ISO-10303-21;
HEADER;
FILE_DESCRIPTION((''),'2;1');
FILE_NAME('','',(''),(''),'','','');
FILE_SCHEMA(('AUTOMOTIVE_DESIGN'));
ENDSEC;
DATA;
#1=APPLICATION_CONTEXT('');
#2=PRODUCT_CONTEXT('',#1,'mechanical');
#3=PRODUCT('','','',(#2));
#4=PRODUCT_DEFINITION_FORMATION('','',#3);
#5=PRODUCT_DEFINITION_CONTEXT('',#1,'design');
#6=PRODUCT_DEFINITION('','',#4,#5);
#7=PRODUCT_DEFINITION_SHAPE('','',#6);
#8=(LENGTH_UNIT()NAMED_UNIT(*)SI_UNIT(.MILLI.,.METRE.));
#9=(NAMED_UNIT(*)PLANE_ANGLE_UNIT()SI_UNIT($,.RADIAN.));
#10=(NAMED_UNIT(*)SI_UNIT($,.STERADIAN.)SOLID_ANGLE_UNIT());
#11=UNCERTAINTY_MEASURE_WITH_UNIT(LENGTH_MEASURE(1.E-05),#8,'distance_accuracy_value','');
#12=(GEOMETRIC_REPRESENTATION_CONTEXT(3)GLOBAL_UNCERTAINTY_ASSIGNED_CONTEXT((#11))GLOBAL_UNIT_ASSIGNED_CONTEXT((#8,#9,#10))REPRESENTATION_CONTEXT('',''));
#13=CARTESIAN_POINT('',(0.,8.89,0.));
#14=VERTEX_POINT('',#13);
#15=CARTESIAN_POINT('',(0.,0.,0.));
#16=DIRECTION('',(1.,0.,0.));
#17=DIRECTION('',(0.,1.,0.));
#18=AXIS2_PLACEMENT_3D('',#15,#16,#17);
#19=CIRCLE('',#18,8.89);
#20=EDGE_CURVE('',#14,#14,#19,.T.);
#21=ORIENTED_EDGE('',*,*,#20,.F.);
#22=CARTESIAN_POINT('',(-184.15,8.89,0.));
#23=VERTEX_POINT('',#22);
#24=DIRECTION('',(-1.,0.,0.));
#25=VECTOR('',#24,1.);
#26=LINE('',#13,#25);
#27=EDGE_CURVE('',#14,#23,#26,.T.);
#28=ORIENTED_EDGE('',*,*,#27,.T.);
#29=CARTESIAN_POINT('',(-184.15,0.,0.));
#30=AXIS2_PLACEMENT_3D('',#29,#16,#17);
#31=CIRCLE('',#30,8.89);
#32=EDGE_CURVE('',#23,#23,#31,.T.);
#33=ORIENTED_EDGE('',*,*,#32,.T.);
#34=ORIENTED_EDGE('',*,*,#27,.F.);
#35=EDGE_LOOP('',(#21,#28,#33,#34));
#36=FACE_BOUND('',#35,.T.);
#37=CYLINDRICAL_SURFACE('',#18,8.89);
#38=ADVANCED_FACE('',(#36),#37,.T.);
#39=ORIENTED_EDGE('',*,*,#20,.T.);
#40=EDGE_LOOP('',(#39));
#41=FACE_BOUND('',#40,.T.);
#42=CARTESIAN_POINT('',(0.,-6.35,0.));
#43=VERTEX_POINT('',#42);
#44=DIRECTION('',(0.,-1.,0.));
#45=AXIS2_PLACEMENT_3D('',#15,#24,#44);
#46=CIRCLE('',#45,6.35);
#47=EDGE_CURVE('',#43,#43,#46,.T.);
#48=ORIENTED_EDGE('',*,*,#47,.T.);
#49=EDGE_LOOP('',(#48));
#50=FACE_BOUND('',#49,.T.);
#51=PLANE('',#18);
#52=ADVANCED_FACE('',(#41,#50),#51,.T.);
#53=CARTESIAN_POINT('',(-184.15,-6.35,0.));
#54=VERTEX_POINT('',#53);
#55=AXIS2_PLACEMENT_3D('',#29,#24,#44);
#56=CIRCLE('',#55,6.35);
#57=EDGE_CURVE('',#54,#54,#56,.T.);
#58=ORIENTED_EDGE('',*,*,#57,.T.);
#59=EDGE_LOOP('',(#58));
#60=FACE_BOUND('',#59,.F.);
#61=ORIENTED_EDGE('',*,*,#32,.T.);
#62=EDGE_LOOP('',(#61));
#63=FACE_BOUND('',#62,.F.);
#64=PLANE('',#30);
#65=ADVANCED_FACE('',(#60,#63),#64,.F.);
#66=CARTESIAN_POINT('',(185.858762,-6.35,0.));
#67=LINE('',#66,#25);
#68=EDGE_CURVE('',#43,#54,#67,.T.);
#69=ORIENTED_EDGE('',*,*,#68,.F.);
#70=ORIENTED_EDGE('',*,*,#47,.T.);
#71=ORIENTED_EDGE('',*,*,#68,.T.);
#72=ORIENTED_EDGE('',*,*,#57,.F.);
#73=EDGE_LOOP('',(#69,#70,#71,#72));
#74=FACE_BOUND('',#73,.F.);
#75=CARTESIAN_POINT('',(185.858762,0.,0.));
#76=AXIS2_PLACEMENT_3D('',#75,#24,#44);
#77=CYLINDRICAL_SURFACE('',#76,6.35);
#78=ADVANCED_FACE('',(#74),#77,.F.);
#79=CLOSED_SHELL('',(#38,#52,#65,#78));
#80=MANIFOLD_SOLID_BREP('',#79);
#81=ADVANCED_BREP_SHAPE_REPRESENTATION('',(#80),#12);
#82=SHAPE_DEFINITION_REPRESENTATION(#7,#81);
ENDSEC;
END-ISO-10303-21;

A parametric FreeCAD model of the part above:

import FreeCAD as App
import Part
import Sketcher

V = App.Vector
Q = App.Units.Quantity

doc = App.newDocument("Part")
body = doc.addObject("PartDesign::Body", "Body")

# Sketch on YZ plane
sketch1 = body.newObject("Sketcher::SketchObject", "Sketch")
sketch1.AttachmentSupport = (doc.getObject("YZ_Plane"), [""])
sketch1.MapMode = "FlatFace"
sketch1.addGeometry(Part.Circle(V(0, 0, 0), V(0, 0, 1), 9), False)
sketch1.addConstraint(Sketcher.Constraint("Coincident", 0, 3, -1, 1))
sketch1.addConstraint(Sketcher.Constraint("Diameter", 0, Q("0.7 in")))
pad1 = body.newObject("PartDesign::Pad", "Pad")
pad1.Profile = sketch1
pad1.Length = Q("7.25 in")
pad1.Reversed = True

# Sketch on YZ plane
sketch2 = body.newObject("Sketcher::SketchObject", "Sketch001")
sketch2.AttachmentSupport = (doc.getObject("YZ_Plane"), [""])
sketch2.MapMode = "FlatFace"
sketch2.addGeometry(Part.Circle(V(0, 0, 0), V(0, 0, 1), 6), False)
sketch2.addConstraint(Sketcher.Constraint("Coincident", 0, 3, -1, 1))
sketch2.addConstraint(Sketcher.Constraint("Diameter", 0, Q("0.5 in")))
doc.recompute()
hole = body.newObject("PartDesign::Hole", "Hole")
hole.Profile = sketch2
hole.ThreadType = "None"
hole.Diameter = Q("0.5 in")
hole.DepthType = "ThroughAll"

doc.recompute()
